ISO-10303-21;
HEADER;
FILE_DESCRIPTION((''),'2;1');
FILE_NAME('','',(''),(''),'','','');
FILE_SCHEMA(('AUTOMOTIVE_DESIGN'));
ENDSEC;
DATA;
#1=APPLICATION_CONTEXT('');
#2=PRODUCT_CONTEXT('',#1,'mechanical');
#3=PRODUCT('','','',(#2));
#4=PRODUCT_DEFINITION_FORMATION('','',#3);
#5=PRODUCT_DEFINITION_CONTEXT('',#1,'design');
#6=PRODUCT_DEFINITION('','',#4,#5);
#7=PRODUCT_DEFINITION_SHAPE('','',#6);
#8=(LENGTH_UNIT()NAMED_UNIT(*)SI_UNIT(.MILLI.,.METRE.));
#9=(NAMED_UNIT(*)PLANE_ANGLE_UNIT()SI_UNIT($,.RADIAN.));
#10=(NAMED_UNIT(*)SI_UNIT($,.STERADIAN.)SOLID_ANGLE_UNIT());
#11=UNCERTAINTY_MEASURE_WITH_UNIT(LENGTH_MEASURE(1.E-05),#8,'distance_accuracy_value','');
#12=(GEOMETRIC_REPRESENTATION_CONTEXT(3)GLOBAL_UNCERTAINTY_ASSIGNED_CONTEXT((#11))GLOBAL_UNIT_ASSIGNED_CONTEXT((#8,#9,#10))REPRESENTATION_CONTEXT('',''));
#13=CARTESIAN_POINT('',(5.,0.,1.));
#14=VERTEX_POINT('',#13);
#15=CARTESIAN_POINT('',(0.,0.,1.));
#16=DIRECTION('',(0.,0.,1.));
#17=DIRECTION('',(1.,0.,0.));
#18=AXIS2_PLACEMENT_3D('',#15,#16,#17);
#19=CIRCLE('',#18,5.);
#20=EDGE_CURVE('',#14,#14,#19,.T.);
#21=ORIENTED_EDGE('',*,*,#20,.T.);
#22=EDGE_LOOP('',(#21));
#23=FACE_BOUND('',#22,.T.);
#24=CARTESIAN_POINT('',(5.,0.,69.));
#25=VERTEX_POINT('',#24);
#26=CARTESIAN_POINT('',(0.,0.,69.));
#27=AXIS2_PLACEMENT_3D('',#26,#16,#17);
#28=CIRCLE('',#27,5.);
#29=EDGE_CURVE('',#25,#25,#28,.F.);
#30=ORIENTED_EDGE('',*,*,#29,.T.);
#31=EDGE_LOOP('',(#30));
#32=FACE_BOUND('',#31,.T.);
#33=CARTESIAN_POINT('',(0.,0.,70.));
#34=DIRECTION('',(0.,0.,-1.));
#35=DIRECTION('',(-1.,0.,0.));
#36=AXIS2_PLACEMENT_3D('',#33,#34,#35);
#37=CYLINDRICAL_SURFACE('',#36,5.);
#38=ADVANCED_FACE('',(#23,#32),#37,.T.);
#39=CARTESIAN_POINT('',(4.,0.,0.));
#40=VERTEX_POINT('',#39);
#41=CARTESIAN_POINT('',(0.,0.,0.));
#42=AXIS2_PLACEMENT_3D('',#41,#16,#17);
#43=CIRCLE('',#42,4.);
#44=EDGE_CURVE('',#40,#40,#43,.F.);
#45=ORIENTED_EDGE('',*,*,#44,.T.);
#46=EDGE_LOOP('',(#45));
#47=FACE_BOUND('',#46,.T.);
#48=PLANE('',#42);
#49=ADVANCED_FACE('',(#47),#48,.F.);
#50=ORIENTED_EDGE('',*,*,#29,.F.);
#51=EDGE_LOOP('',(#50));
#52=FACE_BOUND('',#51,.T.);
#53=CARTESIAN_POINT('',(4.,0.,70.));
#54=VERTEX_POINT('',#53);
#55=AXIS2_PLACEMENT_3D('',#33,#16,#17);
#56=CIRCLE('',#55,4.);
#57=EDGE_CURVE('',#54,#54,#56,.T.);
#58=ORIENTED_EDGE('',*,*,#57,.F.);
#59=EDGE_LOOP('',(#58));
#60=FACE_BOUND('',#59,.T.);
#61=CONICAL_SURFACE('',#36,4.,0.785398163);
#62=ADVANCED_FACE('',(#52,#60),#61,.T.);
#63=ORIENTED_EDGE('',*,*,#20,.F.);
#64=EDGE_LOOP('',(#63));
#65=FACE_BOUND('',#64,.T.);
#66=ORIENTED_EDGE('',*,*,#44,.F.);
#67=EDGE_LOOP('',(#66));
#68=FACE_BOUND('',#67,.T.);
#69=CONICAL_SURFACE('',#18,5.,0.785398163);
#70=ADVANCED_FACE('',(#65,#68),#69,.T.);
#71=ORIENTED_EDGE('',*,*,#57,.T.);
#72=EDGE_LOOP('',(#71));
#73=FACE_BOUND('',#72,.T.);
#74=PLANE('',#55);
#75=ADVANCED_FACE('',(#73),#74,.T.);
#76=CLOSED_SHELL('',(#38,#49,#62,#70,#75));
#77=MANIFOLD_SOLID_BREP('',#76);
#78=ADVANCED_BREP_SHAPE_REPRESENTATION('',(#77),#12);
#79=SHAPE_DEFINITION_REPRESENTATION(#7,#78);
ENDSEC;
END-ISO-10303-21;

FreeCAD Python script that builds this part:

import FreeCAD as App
import Part
import Sketcher
Q = App.Units.Quantity


def edges_at(feature, points):
    """Names of the edges that pass closest to the given points."""
    edges = feature.Shape.Edges
    near = lambda p: min(range(len(edges)), key=lambda i: edges[i].distToShape(Part.Vertex(*p))[0])
    return sorted({f"Edge{near(p) + 1}" for p in points})

doc = App.newDocument("Part")
body = doc.addObject("PartDesign::Body", "Body")

# Sketch on XY plane
sketch1 = body.newObject("Sketcher::SketchObject", "Sketch")
sketch1.AttachmentSupport = (doc.getObject("XY_Plane"), [""])
sketch1.MapMode = "FlatFace"
sketch1.addGeometry(Part.Circle(App.Vector(0, 0, 0), App.Vector(0, 0, 1), 5), False)
sketch1.addConstraint([
    Sketcher.Constraint("Coincident", 0, 3, -1, 1),
    Sketcher.Constraint("Diameter", 0, Q("10 mm")),
])
pad1 = body.newObject("PartDesign::Pad", "Pad")
pad1.Profile = sketch1
pad1.Length = 70
doc.recompute()

chamfer = body.newObject("PartDesign::Chamfer", "Chamfer")
chamfer.Base = (pad1, edges_at(pad1, [(-5, 0, 0), (-5, 0, 70)]))
chamfer.Size = 1

doc.recompute()
